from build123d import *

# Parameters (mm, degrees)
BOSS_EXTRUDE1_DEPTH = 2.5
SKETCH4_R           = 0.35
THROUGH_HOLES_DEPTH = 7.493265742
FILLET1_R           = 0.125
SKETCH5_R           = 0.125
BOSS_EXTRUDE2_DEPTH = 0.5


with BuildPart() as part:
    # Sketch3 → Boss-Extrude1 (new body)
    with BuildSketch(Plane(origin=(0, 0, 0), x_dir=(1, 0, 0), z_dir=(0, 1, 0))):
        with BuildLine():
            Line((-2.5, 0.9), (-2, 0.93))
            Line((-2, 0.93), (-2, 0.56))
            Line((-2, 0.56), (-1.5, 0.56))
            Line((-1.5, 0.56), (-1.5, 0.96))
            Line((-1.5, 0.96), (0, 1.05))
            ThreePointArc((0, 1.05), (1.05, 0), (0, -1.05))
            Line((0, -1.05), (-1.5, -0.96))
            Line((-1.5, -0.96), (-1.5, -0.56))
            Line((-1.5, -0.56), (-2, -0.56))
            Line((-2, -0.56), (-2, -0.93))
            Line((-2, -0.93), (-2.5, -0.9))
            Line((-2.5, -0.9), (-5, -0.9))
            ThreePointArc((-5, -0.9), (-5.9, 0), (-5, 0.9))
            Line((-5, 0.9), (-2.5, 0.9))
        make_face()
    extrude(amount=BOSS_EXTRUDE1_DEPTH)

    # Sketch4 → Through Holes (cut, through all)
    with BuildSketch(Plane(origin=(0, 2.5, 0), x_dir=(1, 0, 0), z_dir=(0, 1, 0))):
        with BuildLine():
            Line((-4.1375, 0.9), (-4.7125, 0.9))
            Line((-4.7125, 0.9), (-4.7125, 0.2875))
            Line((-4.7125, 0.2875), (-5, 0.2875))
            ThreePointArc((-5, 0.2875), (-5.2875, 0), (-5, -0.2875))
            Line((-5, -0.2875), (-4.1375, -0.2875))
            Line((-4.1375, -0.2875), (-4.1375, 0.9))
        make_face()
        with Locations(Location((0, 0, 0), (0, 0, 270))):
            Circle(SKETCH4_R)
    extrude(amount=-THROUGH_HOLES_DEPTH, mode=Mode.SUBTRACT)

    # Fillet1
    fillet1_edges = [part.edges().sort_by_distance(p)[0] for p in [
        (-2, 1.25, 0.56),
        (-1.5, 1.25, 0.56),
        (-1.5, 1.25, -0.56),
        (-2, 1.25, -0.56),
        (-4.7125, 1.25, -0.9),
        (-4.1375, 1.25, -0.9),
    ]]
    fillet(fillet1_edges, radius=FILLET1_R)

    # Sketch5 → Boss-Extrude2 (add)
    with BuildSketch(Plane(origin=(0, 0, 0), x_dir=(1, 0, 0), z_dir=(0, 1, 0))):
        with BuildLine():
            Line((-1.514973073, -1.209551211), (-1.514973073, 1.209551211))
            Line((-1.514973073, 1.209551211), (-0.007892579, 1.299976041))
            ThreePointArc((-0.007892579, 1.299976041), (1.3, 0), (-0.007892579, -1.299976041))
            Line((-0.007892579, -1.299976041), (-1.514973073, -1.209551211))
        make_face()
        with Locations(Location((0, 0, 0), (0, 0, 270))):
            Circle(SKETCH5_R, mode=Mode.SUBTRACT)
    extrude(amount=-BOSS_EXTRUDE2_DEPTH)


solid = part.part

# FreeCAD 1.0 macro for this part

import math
import FreeCAD as App
import Part
import Sketcher
Q = App.Units.Quantity


def edges_at(feature, points):
    """Names of the edges that pass closest to the given points."""
    edges = feature.Shape.Edges
    near = lambda p: min(range(len(edges)), key=lambda i: edges[i].distToShape(Part.Vertex(*p))[0])
    return sorted({f"Edge{near(p) + 1}" for p in points})

doc = App.newDocument("Part")
body = doc.addObject("PartDesign::Body", "Body")

# Sketch on XZ plane
sketch1 = body.newObject("Sketcher::SketchObject", "Sketch")
sketch1.AttachmentSupport = (doc.getObject("XZ_Plane"), [""])
sketch1.MapMode = "FlatFace"
sketch1.addGeometry([
    Part.LineSegment(App.Vector(-2, -0.93, 0), App.Vector(-2.5, -0.9, 0)),  # 0
    Part.LineSegment(App.Vector(-2.5, -0.9, 0), App.Vector(-5, -0.9, 0)),  # 1
    Part.ArcOfCircle(Part.Circle(App.Vector(-5, 0, 0), App.Vector(0, 0, 1), 0.9), math.radians(90), math.radians(270)),  # 2
    Part.LineSegment(App.Vector(-5, 0.9, 0), App.Vector(-2.5, 0.9, 0)),  # 3
    Part.LineSegment(App.Vector(-2.5, 0.9, 0), App.Vector(-2, 0.93, 0)),  # 4
    Part.LineSegment(App.Vector(-2, 0.93, 0), App.Vector(-2, 0.56, 0)),  # 5
    Part.LineSegment(App.Vector(-2, 0.56, 0), App.Vector(-1.5, 0.56, 0)),  # 6
    Part.LineSegment(App.Vector(-1.5, 0.56, 0), App.Vector(-1.5, 0.96, 0)),  # 7
    Part.LineSegment(App.Vector(-1.5, 0.96, 0), App.Vector(0, 1.05, 0)),  # 8
    Part.ArcOfCircle(Part.Circle(App.Vector(0, 0, 0), App.Vector(0, 0, 1), 1.05), math.radians(-90), math.radians(90)),  # 9
    Part.LineSegment(App.Vector(0, -1.05, 0), App.Vector(-1.5, -0.96, 0)),  # 10
    Part.LineSegment(App.Vector(-1.5, -0.96, 0), App.Vector(-1.5, -0.56, 0)),  # 11
    Part.LineSegment(App.Vector(-1.5, -0.56, 0), App.Vector(-2, -0.56, 0)),  # 12
    Part.LineSegment(App.Vector(-2, -0.56, 0), App.Vector(-2, -0.93, 0)),  # 13
], False)
sketch1.addConstraint([
    Sketcher.Constraint("Coincident", 0, 2, 1, 1),
    Sketcher.Constraint("Tangent", 1, 2, 2, 2),
    Sketcher.Constraint("Tangent", 2, 1, 3, 1),
    Sketcher.Constraint("Coincident", 3, 2, 4, 1),
    Sketcher.Constraint("Coincident", 4, 2, 5, 1),
    Sketcher.Constraint("Coincident", 5, 2, 6, 1),
    Sketcher.Constraint("Coincident", 6, 2, 7, 1),
    Sketcher.Constraint("Coincident", 7, 2, 8, 1),
    Sketcher.Constraint("Coincident", 8, 2, 9, 2),
    Sketcher.Constraint("Coincident", 9, 1, 10, 1),
    Sketcher.Constraint("Coincident", 10, 2, 11, 1),
    Sketcher.Constraint("Coincident", 11, 2, 12, 1),
    Sketcher.Constraint("Coincident", 12, 2, 13, 1),
    Sketcher.Constraint("Coincident", 13, 2, 0, 1),
    Sketcher.Constraint("Horizontal", 1),
    Sketcher.Constraint("Horizontal", 3),
    Sketcher.Constraint("Vertical", 5),
    Sketcher.Constraint("Horizontal", 6),
    Sketcher.Constraint("Vertical", 7),
    Sketcher.Constraint("Vertical", 11),
    Sketcher.Constraint("Horizontal", 12),
    Sketcher.Constraint("Vertical", 13),
    Sketcher.Constraint("Coincident", 9, 3, -1, 1),
    Sketcher.Constraint("Symmetric", 0, 2, 3, 2, -1),
    Sketcher.Constraint("Symmetric", 7, 2, 10, 2, -1),
    Sketcher.Constraint("Symmetric", 5, 2, 12, 2, -1),
    Sketcher.Constraint("PointOnObject", 8, 2, -2),
    Sketcher.Constraint("PointOnObject", 9, 1, -2),
    Sketcher.Constraint("Parallel", 4, 8),
    Sketcher.Constraint("Parallel", 0, 10),
    Sketcher.Constraint("Radius", 2, Q("0.9 mm")),
    Sketcher.Constraint("Radius", 9, Q("1.05 mm")),
    Sketcher.Constraint("DistanceX", 1, 2, 1, 1, Q("2.5 mm")),
    Sketcher.Constraint("DistanceX", 6, 1, 6, 2, Q("0.5 mm")),
    Sketcher.Constraint("DistanceY", 7, 1, 7, 2, Q("0.4 mm")),
    Sketcher.Constraint("DistanceX", 2, 3, -1, 1, Q("5 mm")),
    Sketcher.Constraint("DistanceX", 4, 2, -1, 1, Q("2 mm")),
    Sketcher.Constraint("DistanceY", 5, 2, 5, 1, Q("0.37 mm")),
])
pad1 = body.newObject("PartDesign::Pad", "Pad")
pad1.Profile = sketch1
pad1.Length = 2.5
pad1.Reversed = True

# Sketch on XZ plane
sketch2 = body.newObject("Sketcher::SketchObject", "Sketch001")
sketch2.AttachmentSupport = (doc.getObject("XZ_Plane"), [""])
sketch2.MapMode = "FlatFace"
sketch2.AttachmentOffset = App.Placement(App.Vector(0, 0, -2.5), App.Rotation())
sketch2.addGeometry([
    Part.LineSegment(App.Vector(-4.1375, -0.9, 0), App.Vector(-4.7125, -0.9, 0)),  # 0
    Part.LineSegment(App.Vector(-4.7125, -0.9, 0), App.Vector(-4.7125, -0.2875, 0)),  # 1
    Part.LineSegment(App.Vector(-4.7125, -0.2875, 0), App.Vector(-5, -0.2875, 0)),  # 2
    Part.ArcOfCircle(Part.Circle(App.Vector(-5, 0, 0), App.Vector(0, 0, 1), 0.2875), math.radians(90), math.radians(270)),  # 3
    Part.LineSegment(App.Vector(-5, 0.2875, 0), App.Vector(-4.1375, 0.2875, 0)),  # 4
    Part.LineSegment(App.Vector(-4.1375, 0.2875, 0), App.Vector(-4.1375, -0.9, 0)),  # 5
    Part.Circle(App.Vector(0, 0, 0), App.Vector(0, 0, 1), 0.35),  # 6
], False)
sketch2.addConstraint([
    Sketcher.Constraint("Coincident", 0, 2, 1, 1),
    Sketcher.Constraint("Coincident", 1, 2, 2, 1),
    Sketcher.Constraint("Tangent", 2, 2, 3, 2),
    Sketcher.Constraint("Tangent", 3, 1, 4, 1),
    Sketcher.Constraint("Coincident", 4, 2, 5, 1),
    Sketcher.Constraint("Coincident", 5, 2, 0, 1),
    Sketcher.Constraint("Horizontal", 0),
    Sketcher.Constraint("Vertical", 1),
    Sketcher.Constraint("Horizontal", 2),
    Sketcher.Constraint("Horizontal", 4),
    Sketcher.Constraint("Vertical", 5),
    Sketcher.Constraint("Coincident", 6, 3, -1, 1),
    Sketcher.Constraint("PointOnObject", 3, 3, -1),
    Sketcher.Constraint("Diameter", 6, Q("0.7 mm")),
    Sketcher.Constraint("DistanceX", 3, 3, -1, 1, Q("5 mm")),
    Sketcher.Constraint("DistanceY", 0, 2, -1, 1, Q("0.9 mm")),
    Sketcher.Constraint("Radius", 3, Q("0.2875 mm")),
    Sketcher.Constraint("DistanceX", 0, 2, 0, 1, Q("0.575 mm")),
    Sketcher.Constraint("DistanceX", 2, 2, 2, 1, Q("0.2875 mm")),
])
pocket1 = body.newObject("PartDesign::Pocket", "Pocket")
pocket1.Profile = sketch2
pocket1.Type = "ThroughAll"
pocket1.Reversed = True
doc.recompute()

fillet = body.newObject("PartDesign::Fillet", "Fillet")
fillet.Base = (pocket1, edges_at(pocket1, [
    (-2, 1.25, 0.56),
    (-1.5, 1.25, 0.56),
    (-1.5, 1.25, -0.56),
    (-2, 1.25, -0.56),
    (-4.713, 1.25, -0.9),
    (-4.138, 1.25, -0.9),
]))
fillet.Radius = 0.125

# Sketch on XZ plane
sketch3 = body.newObject("Sketcher::SketchObject", "Sketch002")
sketch3.AttachmentSupport = (doc.getObject("XZ_Plane"), [""])
sketch3.MapMode = "FlatFace"
sketch3.addGeometry([
    Part.LineSegment(App.Vector(-1.514973, -1.209551, 0), App.Vector(-1.514973, 1.209551, 0)),  # 0
    Part.LineSegment(App.Vector(-1.514973, 1.209551, 0), App.Vector(-0.007893, 1.299976, 0)),  # 1
    Part.ArcOfCircle(Part.Circle(App.Vector(0, 0, 0), App.Vector(0, 0, 1), 1.3), math.radians(-90.347857), math.radians(90.347857)),  # 2
    Part.LineSegment(App.Vector(-0.007893, -1.299976, 0), App.Vector(-1.514973, -1.209551, 0)),  # 3
    Part.Circle(App.Vector(0, 0, 0), App.Vector(0, 0, 1), 0.125),  # 4
], False)
sketch3.addConstraint([
    Sketcher.Constraint("Coincident", 0, 2, 1, 1),
    Sketcher.Constraint("Coincident", 1, 2, 2, 2),
    Sketcher.Constraint("Coincident", 2, 1, 3, 1),
    Sketcher.Constraint("Coincident", 3, 2, 0, 1),
    Sketcher.Constraint("Vertical", 0),
    Sketcher.Constraint("Coincident", 2, 3, -1, 1),
    Sketcher.Constraint("Coincident", 4, 3, -1, 1),
    Sketcher.Constraint("Vertical", 1, 2, 2, 1),
    Sketcher.Constraint("Equal", 1, 3),
    Sketcher.Constraint("Radius", 2, Q("1.3 mm")),
    Sketcher.Constraint("Diameter", 4, Q("0.25 mm")),
    Sketcher.Constraint("Distance", 1, Q("1.509791 mm")),
    Sketcher.Constraint("DistanceY", 0, 1, 0, 2, Q("2.419102 mm")),
    Sketcher.Constraint("DistanceX", 0, 2, -1, 1, Q("1.514973 mm")),
])
pad2 = body.newObject("PartDesign::Pad", "Pad001")
pad2.Profile = sketch3
pad2.Length = 0.5

doc.recompute()
